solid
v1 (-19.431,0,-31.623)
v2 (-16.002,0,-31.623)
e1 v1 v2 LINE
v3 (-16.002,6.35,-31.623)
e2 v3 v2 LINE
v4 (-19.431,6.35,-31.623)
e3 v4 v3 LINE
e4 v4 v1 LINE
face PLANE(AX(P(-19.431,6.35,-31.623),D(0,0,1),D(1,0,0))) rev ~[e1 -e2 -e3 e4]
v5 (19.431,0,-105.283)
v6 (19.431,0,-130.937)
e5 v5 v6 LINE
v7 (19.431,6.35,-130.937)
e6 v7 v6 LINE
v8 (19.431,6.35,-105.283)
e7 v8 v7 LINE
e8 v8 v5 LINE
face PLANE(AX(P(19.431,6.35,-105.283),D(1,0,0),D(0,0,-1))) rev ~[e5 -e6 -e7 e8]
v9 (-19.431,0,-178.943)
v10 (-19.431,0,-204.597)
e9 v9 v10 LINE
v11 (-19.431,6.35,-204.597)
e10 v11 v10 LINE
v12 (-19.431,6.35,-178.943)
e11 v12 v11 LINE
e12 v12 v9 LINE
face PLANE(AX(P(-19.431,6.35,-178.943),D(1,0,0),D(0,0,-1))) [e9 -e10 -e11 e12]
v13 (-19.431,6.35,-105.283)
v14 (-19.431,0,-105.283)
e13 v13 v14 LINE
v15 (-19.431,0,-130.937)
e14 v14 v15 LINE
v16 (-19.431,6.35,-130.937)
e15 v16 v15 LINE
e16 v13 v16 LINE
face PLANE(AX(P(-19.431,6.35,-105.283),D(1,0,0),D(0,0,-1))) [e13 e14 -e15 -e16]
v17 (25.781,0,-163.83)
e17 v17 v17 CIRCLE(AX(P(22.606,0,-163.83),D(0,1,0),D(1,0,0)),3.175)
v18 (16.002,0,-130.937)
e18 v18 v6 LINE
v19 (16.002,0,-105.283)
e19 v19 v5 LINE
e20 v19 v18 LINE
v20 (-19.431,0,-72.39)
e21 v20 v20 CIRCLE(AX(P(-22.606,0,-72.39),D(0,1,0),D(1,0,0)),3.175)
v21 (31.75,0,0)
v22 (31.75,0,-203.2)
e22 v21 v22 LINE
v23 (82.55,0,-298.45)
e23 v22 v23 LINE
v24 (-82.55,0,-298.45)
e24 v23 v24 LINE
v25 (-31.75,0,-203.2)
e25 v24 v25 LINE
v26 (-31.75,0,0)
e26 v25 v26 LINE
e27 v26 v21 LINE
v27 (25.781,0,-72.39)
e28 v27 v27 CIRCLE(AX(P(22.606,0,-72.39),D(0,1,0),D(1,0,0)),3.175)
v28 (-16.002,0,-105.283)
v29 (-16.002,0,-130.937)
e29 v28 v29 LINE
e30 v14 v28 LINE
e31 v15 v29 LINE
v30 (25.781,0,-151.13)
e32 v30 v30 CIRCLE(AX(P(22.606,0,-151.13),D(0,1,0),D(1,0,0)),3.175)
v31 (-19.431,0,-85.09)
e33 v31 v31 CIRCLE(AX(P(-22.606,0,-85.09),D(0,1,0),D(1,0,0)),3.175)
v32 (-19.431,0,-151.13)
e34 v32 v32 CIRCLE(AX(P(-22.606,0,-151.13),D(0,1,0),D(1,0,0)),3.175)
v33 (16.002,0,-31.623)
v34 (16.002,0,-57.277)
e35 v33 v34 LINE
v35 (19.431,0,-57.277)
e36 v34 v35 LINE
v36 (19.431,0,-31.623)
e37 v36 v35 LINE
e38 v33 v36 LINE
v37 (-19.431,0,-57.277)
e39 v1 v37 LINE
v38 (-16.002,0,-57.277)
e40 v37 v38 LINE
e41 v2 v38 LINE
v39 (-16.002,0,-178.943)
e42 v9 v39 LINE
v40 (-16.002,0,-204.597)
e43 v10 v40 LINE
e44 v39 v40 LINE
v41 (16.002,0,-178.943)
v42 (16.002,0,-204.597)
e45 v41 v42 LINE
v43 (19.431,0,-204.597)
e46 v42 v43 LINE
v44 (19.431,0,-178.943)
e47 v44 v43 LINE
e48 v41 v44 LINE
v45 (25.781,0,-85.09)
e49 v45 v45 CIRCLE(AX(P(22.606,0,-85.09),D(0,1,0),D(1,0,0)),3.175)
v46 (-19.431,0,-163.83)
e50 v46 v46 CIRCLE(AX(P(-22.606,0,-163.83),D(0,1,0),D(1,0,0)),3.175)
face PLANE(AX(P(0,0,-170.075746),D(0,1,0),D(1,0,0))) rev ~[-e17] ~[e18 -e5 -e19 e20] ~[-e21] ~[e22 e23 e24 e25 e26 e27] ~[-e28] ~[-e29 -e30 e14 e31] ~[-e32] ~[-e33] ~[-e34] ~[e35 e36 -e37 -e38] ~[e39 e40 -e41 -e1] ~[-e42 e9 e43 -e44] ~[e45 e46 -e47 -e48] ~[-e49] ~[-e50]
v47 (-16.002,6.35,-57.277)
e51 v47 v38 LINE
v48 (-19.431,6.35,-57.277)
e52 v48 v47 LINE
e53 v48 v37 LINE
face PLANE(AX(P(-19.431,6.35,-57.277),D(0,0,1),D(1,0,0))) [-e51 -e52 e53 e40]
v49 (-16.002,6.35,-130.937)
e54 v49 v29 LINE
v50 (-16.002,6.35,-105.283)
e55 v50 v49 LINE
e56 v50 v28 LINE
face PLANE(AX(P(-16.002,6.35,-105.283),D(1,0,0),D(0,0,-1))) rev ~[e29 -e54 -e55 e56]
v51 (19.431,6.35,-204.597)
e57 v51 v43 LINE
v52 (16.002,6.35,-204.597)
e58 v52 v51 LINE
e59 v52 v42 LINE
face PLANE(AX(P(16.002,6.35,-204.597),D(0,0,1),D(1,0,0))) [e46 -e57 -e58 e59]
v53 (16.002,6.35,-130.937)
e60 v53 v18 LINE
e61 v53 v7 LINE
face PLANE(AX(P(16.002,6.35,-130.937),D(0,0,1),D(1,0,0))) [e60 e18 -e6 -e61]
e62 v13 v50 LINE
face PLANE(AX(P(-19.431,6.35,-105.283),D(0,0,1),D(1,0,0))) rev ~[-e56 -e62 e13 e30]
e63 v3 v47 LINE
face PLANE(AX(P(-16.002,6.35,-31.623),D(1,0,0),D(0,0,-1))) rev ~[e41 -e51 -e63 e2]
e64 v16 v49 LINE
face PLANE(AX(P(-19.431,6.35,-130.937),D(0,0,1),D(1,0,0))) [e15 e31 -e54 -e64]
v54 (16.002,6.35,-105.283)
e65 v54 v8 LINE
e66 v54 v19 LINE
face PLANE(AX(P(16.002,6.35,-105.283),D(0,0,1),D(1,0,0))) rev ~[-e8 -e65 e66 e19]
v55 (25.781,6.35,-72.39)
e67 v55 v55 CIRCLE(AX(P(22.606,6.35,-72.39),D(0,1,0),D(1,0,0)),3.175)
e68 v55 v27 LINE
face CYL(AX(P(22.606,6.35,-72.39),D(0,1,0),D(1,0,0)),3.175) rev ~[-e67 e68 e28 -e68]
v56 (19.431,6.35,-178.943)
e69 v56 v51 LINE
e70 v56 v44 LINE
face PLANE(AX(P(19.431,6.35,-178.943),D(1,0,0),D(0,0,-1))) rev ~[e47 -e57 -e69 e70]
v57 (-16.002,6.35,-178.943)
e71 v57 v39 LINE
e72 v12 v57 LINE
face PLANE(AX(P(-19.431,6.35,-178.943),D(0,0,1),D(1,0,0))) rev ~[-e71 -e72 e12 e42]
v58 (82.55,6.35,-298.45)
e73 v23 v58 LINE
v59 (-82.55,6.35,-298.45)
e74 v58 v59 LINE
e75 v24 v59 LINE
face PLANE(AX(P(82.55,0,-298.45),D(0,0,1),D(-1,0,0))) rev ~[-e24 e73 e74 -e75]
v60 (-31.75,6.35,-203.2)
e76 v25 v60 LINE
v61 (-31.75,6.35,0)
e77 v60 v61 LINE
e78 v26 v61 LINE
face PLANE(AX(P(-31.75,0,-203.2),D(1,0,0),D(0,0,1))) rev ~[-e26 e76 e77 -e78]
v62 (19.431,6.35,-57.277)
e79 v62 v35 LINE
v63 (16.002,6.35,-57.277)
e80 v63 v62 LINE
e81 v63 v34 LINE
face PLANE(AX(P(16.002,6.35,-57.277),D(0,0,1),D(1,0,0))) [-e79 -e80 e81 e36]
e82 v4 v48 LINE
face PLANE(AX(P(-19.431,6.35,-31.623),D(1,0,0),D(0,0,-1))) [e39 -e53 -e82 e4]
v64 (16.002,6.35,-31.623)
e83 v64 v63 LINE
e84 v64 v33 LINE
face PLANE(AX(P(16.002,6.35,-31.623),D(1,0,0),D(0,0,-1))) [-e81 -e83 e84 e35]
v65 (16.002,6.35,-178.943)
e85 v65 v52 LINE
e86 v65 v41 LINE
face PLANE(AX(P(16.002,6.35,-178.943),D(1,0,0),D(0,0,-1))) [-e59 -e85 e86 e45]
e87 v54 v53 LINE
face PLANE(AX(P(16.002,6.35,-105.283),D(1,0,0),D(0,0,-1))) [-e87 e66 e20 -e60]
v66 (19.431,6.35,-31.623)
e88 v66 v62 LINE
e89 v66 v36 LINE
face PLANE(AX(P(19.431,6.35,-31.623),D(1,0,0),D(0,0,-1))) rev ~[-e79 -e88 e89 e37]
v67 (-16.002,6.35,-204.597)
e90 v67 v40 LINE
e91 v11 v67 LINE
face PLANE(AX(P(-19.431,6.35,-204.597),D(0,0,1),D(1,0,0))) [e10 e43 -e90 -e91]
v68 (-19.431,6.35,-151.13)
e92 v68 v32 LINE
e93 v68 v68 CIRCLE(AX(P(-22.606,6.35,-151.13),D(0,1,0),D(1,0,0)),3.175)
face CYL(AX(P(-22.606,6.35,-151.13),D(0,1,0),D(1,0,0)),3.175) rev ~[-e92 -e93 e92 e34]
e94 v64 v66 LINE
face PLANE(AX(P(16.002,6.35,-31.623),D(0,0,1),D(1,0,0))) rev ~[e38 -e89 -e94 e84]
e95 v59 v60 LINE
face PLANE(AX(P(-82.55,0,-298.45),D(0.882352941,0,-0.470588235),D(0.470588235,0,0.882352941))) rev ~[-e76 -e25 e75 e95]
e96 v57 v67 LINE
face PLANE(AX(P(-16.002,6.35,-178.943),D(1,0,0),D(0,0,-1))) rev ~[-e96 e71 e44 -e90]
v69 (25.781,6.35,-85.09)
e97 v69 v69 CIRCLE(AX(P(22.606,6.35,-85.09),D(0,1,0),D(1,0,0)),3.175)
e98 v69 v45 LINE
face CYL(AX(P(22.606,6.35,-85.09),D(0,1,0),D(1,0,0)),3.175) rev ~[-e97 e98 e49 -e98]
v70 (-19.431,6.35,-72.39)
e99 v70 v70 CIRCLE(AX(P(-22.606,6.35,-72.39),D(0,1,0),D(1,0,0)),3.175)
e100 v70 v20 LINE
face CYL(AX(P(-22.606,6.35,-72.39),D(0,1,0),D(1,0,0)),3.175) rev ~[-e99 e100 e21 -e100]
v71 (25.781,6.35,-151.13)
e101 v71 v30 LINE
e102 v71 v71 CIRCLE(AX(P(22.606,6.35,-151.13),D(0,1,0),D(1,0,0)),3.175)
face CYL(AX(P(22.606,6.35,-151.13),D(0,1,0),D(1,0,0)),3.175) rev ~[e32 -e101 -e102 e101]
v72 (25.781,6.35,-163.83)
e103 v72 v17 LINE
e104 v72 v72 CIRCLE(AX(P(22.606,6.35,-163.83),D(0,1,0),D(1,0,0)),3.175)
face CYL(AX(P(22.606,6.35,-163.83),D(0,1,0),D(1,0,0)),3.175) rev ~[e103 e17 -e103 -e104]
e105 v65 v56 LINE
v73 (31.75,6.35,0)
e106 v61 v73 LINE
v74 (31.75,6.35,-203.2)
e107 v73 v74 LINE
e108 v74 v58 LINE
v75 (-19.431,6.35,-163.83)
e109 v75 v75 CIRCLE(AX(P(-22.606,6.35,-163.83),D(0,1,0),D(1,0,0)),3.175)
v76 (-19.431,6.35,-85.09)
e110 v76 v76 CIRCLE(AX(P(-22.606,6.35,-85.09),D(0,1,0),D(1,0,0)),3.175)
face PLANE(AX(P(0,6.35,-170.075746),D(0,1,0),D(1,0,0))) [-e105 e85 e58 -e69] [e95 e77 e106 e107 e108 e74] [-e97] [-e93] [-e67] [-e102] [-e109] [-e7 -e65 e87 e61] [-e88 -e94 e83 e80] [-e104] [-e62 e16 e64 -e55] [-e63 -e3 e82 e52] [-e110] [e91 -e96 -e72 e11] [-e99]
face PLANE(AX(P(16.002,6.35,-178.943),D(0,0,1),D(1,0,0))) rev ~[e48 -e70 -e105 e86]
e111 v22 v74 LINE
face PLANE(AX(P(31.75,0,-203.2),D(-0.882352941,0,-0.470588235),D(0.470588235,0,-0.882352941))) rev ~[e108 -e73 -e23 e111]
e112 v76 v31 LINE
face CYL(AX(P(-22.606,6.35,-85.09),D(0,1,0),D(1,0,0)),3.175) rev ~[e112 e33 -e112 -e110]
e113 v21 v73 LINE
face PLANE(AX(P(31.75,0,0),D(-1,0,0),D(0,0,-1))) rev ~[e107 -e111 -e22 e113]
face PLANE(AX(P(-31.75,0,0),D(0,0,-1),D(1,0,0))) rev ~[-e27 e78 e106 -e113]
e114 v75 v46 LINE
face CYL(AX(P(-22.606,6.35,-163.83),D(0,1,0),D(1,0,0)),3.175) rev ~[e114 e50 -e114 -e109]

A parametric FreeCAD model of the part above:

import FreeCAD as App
import Part
import Sketcher
from FreeCAD import Vector
Q = App.Units.Quantity


def add_polygon(sketch, points):
    """Adds a closed chain of lines whose ends are joined by coincident constraints."""
    first, n = sketch.GeometryCount, len(points)
    for a, b in zip(points, points[1:] + points[:1]):
        sketch.addGeometry(Part.LineSegment(App.Vector(*a, 0), App.Vector(*b, 0)), False)
    for i in range(n):
        sketch.addConstraint(Sketcher.Constraint("Coincident", first + i, 2, first + (i + 1) % n, 1))

doc = App.newDocument("Part")
body = doc.addObject("PartDesign::Body", "Body")

# Sketch on XZ plane
sketch1 = doc.addObject("Sketcher::SketchObject", "Sketch")
body.addObject(sketch1)
sketch1.AttachmentSupport = (doc.XZ_Plane, [""])
sketch1.MapMode = "FlatFace"
add_polygon(sketch1, [(-31.75, 0), (31.75, 0), (31.75, -203.2), (82.55, -298.45), (-82.55, -298.45), (-31.75, -203.2)])  # lines 0-5
sketch1.addConstraint(Sketcher.Constraint("Horizontal", 0))
sketch1.addConstraint(Sketcher.Constraint("Vertical", 1))
sketch1.addConstraint(Sketcher.Constraint("Horizontal", 3))
sketch1.addConstraint(Sketcher.Constraint("Vertical", 5))
sketch1.addConstraint(Sketcher.Constraint("Symmetric", 0, 2, 5, 2, -1, 1))
sketch1.addConstraint(Sketcher.Constraint("Horizontal", 1, 2, 4, 2))
sketch1.addConstraint(Sketcher.Constraint("Equal", 2, 4))
sketch1.addConstraint(Sketcher.Constraint("DistanceY", 1, 2, 1, 1, Q("8 in")))
sketch1.addConstraint(Sketcher.Constraint("DistanceX", 0, 1, 0, 2, Q("2.5 in")))
sketch1.addConstraint(Sketcher.Constraint("DistanceX", 3, 2, 3, 1, Q("6.5 in")))
sketch1.addConstraint(Sketcher.Constraint("Distance", 2, Q("4.25 in")))
pad1 = doc.addObject("PartDesign::Pad", "Pad")
body.addObject(pad1)
pad1.Profile = sketch1
pad1.Length = Q("0.25 in")
pad1.Reversed = True

# Sketch on XZ plane
sketch2 = doc.addObject("Sketcher::SketchObject", "Sketch001")
body.addObject(sketch2)
sketch2.AttachmentSupport = (doc.XZ_Plane, [""])
sketch2.MapMode = "FlatFace"
sketch2.AttachmentOffset = App.Placement(Vector(0, 0, -0.25 * 25.4), App.Rotation())
add_polygon(sketch2, [(-19.431, -57.277), (-19.431, -31.623), (-16.002, -31.623), (-16.002, -57.277)])  # lines 0-3
add_polygon(sketch2, [(-19.431, -130.937), (-19.431, -105.283), (-16.002, -105.283), (-16.002, -130.937)])  # lines 4-7
add_polygon(sketch2, [(-19.431, -204.597), (-19.431, -178.943), (-16.002, -178.943), (-16.002, -204.597)])  # lines 8-11
add_polygon(sketch2, [(16.002, -204.597), (16.002, -178.943), (19.431, -178.943), (19.431, -204.597)])  # lines 12-15
add_polygon(sketch2, [(16.002, -130.937), (16.002, -105.283), (19.431, -105.283), (19.431, -130.937)])  # lines 16-19
add_polygon(sketch2, [(16.002, -57.277), (16.002, -31.623), (19.431, -31.623), (19.431, -57.277)])  # lines 20-23
sketch2.addConstraint(Sketcher.Constraint("Vertical", 0))
sketch2.addConstraint(Sketcher.Constraint("Horizontal", 1))
sketch2.addConstraint(Sketcher.Constraint("Vertical", 2))
sketch2.addConstraint(Sketcher.Constraint("Horizontal", 3))
sketch2.addConstraint(Sketcher.Constraint("Vertical", 4))
sketch2.addConstraint(Sketcher.Constraint("Horizontal", 5))
sketch2.addConstraint(Sketcher.Constraint("Vertical", 6))
sketch2.addConstraint(Sketcher.Constraint("Horizontal", 7))
sketch2.addConstraint(Sketcher.Constraint("Vertical", 8))
sketch2.addConstraint(Sketcher.Constraint("Horizontal", 9))
sketch2.addConstraint(Sketcher.Constraint("Vertical", 10))
sketch2.addConstraint(Sketcher.Constraint("Horizontal", 11))
sketch2.addConstraint(Sketcher.Constraint("Vertical", 12))
sketch2.addConstraint(Sketcher.Constraint("Horizontal", 13))
sketch2.addConstraint(Sketcher.Constraint("Vertical", 14))
sketch2.addConstraint(Sketcher.Constraint("Horizontal", 15))
sketch2.addConstraint(Sketcher.Constraint("Vertical", 16))
sketch2.addConstraint(Sketcher.Constraint("Horizontal", 17))
sketch2.addConstraint(Sketcher.Constraint("Vertical", 18))
sketch2.addConstraint(Sketcher.Constraint("Horizontal", 19))
sketch2.addConstraint(Sketcher.Constraint("Vertical", 20))
sketch2.addConstraint(Sketcher.Constraint("Horizontal", 21))
sketch2.addConstraint(Sketcher.Constraint("Vertical", 22))
sketch2.addConstraint(Sketcher.Constraint("Horizontal", 23))
sketch2.addConstraint(Sketcher.Constraint("Symmetric", 9, 2, 12, 2, -2))
sketch2.addConstraint(Sketcher.Constraint("Symmetric", 11, 2, 14, 2, -2))
sketch2.addConstraint(Sketcher.Constraint("Symmetric", 5, 2, 16, 2, -2))
sketch2.addConstraint(Sketcher.Constraint("Symmetric", 7, 2, 18, 2, -2))
sketch2.addConstraint(Sketcher.Constraint("Symmetric", 1, 2, 20, 2, -2))
sketch2.addConstraint(Sketcher.Constraint("Symmetric", 3, 2, 22, 2, -2))
sketch2.addConstraint(Sketcher.Constraint("Vertical", 3, 2, 4, 2))
sketch2.addConstraint(Sketcher.Constraint("Vertical", 2, 2, 5, 2))
sketch2.addConstraint(Sketcher.Constraint("Vertical", 7, 2, 8, 2))
sketch2.addConstraint(Sketcher.Constraint("Vertical", 6, 2, 9, 2))
sketch2.addConstraint(Sketcher.Constraint("Equal", 2, 4))
sketch2.addConstraint(Sketcher.Constraint("Equal", 6, 8))
sketch2.addConstraint(Sketcher.Constraint("DistanceY", 0, 1, 0, 2, Q("1.01 in")))
sketch2.addConstraint(Sketcher.Constraint("DistanceY", 4, 2, 0, 2, Q("2.9 in")))
sketch2.addConstraint(Sketcher.Constraint("DistanceY", 8, 2, 4, 2, Q("2.9 in")))
sketch2.addConstraint(Sketcher.Constraint("DistanceX", 1, 1, 1, 2, Q("0.135 in")))
sketch2.addConstraint(Sketcher.Constraint("DistanceX", 1, 2, -1, 1, Q("0.63 in")))
sketch2.addConstraint(Sketcher.Constraint("DistanceY", 0, 2, -1, 1, Q("1.245 in")))
pocket1 = doc.addObject("PartDesign::Pocket", "Pocket")
body.addObject(pocket1)
pocket1.Profile = sketch2
pocket1.Type = "ThroughAll"
pocket1.Reversed = True

# Sketch on XZ plane
sketch3 = doc.addObject("Sketcher::SketchObject", "Sketch002")
body.addObject(sketch3)
sketch3.AttachmentSupport = (doc.XZ_Plane, [""])
sketch3.MapMode = "FlatFace"
sketch3.AttachmentOffset = App.Placement(Vector(0, 0, -0.25 * 25.4), App.Rotation())
sketch3.addGeometry(Part.Circle(Vector(-22.606, -163.83, 0), Vector(0, 0, 1), 3.175), False)
sketch3.addGeometry(Part.Circle(Vector(-22.606, -151.13, 0), Vector(0, 0, 1), 3.175), False)
sketch3.addGeometry(Part.Circle(Vector(22.606, -151.13, 0), Vector(0, 0, 1), 3.175), False)
sketch3.addGeometry(Part.Circle(Vector(22.606, -163.83, 0), Vector(0, 0, 1), 3.175), False)
sketch3.addGeometry(Part.Circle(Vector(22.606, -85.09, 0), Vector(0, 0, 1), 3.175), False)
sketch3.addGeometry(Part.Circle(Vector(22.606, -72.39, 0), Vector(0, 0, 1), 3.175), False)
sketch3.addGeometry(Part.Circle(Vector(-22.606, -72.39, 0), Vector(0, 0, 1), 3.175), False)
sketch3.addGeometry(Part.Circle(Vector(-22.606, -85.09, 0), Vector(0, 0, 1), 3.175), False)
sketch3.addConstraint(Sketcher.Constraint("Equal", 0, 1))
sketch3.addConstraint(Sketcher.Constraint("Equal", 1, 2))
sketch3.addConstraint(Sketcher.Constraint("Equal", 2, 3))
sketch3.addConstraint(Sketcher.Constraint("Equal", 3, 4))
sketch3.addConstraint(Sketcher.Constraint("Equal", 4, 5))
sketch3.addConstraint(Sketcher.Constraint("Equal", 5, 6))
sketch3.addConstraint(Sketcher.Constraint("Equal", 6, 7))
sketch3.addConstraint(Sketcher.Constraint("Symmetric", 1, 3, 2, 3, -2))
sketch3.addConstraint(Sketcher.Constraint("Symmetric", 0, 3, 3, 3, -2))
sketch3.addConstraint(Sketcher.Constraint("Symmetric", 5, 3, 6, 3, -2))
sketch3.addConstraint(Sketcher.Constraint("Symmetric", 4, 3, 7, 3, -2))
sketch3.addConstraint(Sketcher.Constraint("Vertical", 0, 3, 1, 3))
sketch3.addConstraint(Sketcher.Constraint("Vertical", 3, 3, 4, 3))
sketch3.addConstraint(Sketcher.Constraint("Vertical", 4, 3, 5, 3))
sketch3.addConstraint(Sketcher.Constraint("Diameter", 0, Q("0.25 in")))
sketch3.addConstraint(Sketcher.Constraint("DistanceY", 0, 3, 1, 3, Q("0.5 in")))
sketch3.addConstraint(Sketcher.Constraint("DistanceY", 2, 3, 4, 3, Q("2.6 in")))
sketch3.addConstraint(Sketcher.Constraint("DistanceY", 4, 3, 5, 3, Q("0.5 in")))
sketch3.addConstraint(Sketcher.Constraint("DistanceX", 0, 3, -1, 1, Q("0.89 in")))
sketch3.addConstraint(Sketcher.Constraint("DistanceY", 0, 3, -1, 1, Q("6.45 in")))
pocket2 = doc.addObject("PartDesign::Pocket", "Pocket001")
body.addObject(pocket2)
pocket2.Profile = sketch3
pocket2.Type = "ThroughAll"
pocket2.Reversed = True

doc.recompute()
